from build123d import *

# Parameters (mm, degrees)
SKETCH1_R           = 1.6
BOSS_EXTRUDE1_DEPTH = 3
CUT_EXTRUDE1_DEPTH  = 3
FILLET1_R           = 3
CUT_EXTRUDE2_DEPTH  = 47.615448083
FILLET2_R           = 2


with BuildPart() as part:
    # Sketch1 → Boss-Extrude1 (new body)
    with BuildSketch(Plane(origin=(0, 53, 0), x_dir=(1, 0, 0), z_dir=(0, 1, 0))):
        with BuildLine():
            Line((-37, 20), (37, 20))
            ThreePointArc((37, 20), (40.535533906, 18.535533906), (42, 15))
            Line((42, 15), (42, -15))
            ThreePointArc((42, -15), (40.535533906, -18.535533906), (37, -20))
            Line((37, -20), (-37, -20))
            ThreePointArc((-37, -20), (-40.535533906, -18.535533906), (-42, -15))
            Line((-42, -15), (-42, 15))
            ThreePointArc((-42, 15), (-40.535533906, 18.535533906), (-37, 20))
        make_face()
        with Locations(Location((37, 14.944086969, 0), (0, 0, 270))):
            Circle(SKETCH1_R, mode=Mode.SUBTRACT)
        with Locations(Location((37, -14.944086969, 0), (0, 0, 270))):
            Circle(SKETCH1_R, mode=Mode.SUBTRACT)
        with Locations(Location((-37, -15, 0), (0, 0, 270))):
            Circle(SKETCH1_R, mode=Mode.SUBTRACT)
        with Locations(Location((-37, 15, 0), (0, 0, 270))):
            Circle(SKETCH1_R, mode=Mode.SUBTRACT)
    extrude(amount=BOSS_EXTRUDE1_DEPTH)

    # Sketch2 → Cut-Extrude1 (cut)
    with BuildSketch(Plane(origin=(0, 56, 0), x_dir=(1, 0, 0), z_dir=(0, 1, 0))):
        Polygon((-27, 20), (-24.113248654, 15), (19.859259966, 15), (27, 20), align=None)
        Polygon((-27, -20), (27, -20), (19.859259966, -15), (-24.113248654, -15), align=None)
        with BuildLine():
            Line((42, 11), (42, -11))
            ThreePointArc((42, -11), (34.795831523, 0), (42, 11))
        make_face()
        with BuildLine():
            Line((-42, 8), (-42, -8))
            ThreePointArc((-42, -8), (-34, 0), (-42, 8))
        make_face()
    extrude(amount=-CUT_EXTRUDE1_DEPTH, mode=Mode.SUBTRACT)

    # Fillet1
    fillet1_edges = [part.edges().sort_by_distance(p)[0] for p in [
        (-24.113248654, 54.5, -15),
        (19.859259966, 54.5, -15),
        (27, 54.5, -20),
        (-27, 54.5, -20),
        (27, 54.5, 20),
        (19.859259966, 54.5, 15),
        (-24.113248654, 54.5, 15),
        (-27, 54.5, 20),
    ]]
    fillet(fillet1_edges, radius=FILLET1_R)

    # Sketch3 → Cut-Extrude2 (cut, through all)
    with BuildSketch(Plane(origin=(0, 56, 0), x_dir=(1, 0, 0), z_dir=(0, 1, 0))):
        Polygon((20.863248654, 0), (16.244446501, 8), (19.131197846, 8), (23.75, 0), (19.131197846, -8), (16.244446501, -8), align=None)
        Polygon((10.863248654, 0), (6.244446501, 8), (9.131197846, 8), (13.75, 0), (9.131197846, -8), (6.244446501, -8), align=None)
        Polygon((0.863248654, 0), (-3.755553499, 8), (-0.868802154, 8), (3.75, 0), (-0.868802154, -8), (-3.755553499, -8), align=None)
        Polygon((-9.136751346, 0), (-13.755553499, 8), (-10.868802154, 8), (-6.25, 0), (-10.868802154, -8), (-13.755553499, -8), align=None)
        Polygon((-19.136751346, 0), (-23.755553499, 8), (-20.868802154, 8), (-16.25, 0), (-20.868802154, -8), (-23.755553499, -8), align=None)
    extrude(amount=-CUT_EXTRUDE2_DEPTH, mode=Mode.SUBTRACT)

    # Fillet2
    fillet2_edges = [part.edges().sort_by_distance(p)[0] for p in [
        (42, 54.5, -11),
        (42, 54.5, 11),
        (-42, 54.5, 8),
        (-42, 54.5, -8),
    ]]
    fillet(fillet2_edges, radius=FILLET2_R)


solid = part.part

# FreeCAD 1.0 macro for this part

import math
import FreeCAD as App
import Part
import Sketcher

V = App.Vector
Q = App.Units.Quantity


def edges_at(feature, points):
    """Names of the edges that pass closest to the given points."""
    edges = feature.Shape.Edges
    near = lambda p: min(range(len(edges)), key=lambda i: edges[i].distToShape(Part.Vertex(*p))[0])
    return sorted({f"Edge{near(p) + 1}" for p in points})


def add_polygon(sketch, points):
    """Adds a closed chain of lines whose ends are joined by coincident constraints."""
    first, n = sketch.GeometryCount, len(points)
    for a, b in zip(points, points[1:] + points[:1]):
        sketch.addGeometry(Part.LineSegment(App.Vector(*a, 0), App.Vector(*b, 0)), False)
    for i in range(n):
        sketch.addConstraint(Sketcher.Constraint("Coincident", first + i, 2, first + (i + 1) % n, 1))

doc = App.newDocument("Part")
params = doc.addObject("Spreadsheet::Sheet", "Params")
for row, (alias, value) in enumerate([
    ("sketch1_radius", "5 mm"),
    ("sketch1_diameter", "3.2 mm"),
    ("sketch1_width", "74 mm"),
    ("sketch1_height", "30 mm"),
    ("pad1_length", "3 mm"),
    ("sketch2_radius", "12 mm"),
    ("sketch2_radius2", "8 mm"),
    ("sketch2_width", "54 mm"),
    ("sketch2_height", "22 mm"),
    ("pocket1_length", "3 mm"),
    ("fillet_radius", "3 mm"),
    ("fillet2_radius", "2 mm"),
], start=1):
    params.set(f"A{row}", alias)
    params.set(f"B{row}", "=" + value)
    params.setAlias(f"B{row}", alias)

body = doc.addObject("PartDesign::Body", "Body")

# Sketch on XZ plane
sketch1 = body.newObject("Sketcher::SketchObject", "Sketch")
sketch1.AttachmentSupport = (doc.getObject("XZ_Plane"), [""])
sketch1.MapMode = "FlatFace"
sketch1.AttachmentOffset = App.Placement(V(0, 0, -53), App.Rotation())
sketch1.addGeometry([
    Part.LineSegment(V(37, -20, 0), V(-37, -20, 0)),  # 0
    Part.ArcOfCircle(Part.Circle(V(-37, -15, 0), V(0, 0, 1), 5), math.radians(180), math.radians(270)),  # 1
    Part.LineSegment(V(-42, -15, 0), V(-42, 15, 0)),  # 2
    Part.ArcOfCircle(Part.Circle(V(-37, 15, 0), V(0, 0, 1), 5), math.radians(90), math.radians(180)),  # 3
    Part.LineSegment(V(-37, 20, 0), V(37, 20, 0)),  # 4
    Part.ArcOfCircle(Part.Circle(V(37, 15, 0), V(0, 0, 1), 5), math.radians(0), math.radians(90)),  # 5
    Part.LineSegment(V(42, 15, 0), V(42, -15, 0)),  # 6
    Part.ArcOfCircle(Part.Circle(V(37, -15, 0), V(0, 0, 1), 5), math.radians(-90), math.radians(0)),  # 7
    Part.Circle(V(37, 14.9, 0), V(0, 0, 1), 1.6),  # 8
    Part.Circle(V(-37, 15, 0), V(0, 0, 1), 1.6),  # 9
    Part.Circle(V(37, -14.9, 0), V(0, 0, 1), 1.6),  # 10
    Part.Circle(V(-37, -15, 0), V(0, 0, 1), 1.6),  # 11
], False)
sketch1.addConstraint([
    Sketcher.Constraint("Tangent", 0, 2, 1, 2),
    Sketcher.Constraint("Tangent", 1, 1, 2, 1),
    Sketcher.Constraint("Tangent", 2, 2, 3, 2),
    Sketcher.Constraint("Tangent", 3, 1, 4, 1),
    Sketcher.Constraint("Tangent", 4, 2, 5, 2),
    Sketcher.Constraint("Tangent", 5, 1, 6, 1),
    Sketcher.Constraint("Tangent", 6, 2, 7, 2),
    Sketcher.Constraint("Tangent", 7, 1, 0, 1),
    Sketcher.Constraint("Horizontal", 0),
    Sketcher.Constraint("Vertical", 2),
    Sketcher.Constraint("Horizontal", 4),
    Sketcher.Constraint("Vertical", 6),
    Sketcher.Constraint("Coincident", 9, 3, 3, 3),
    Sketcher.Constraint("Coincident", 11, 3, 1, 3),
    Sketcher.Constraint("Equal", 1, 3),
    Sketcher.Constraint("Equal", 3, 5),
    Sketcher.Constraint("Equal", 5, 7),
    Sketcher.Constraint("Equal", 8, 9),
    Sketcher.Constraint("Equal", 9, 10),
    Sketcher.Constraint("Equal", 10, 11),
    Sketcher.Constraint("Symmetric", 1, 3, 5, 3, -1, 1),
    Sketcher.Constraint("Symmetric", 8, 3, 10, 3, -1),
    Sketcher.Constraint("Vertical", 7, 3, 8, 3),
    Sketcher.Constraint("Radius", 1, 5.0),
    Sketcher.Constraint("Diameter", 8, 3.2),
    Sketcher.Constraint("DistanceX", 0, 2, 0, 1, 74.0),
    Sketcher.Constraint("DistanceY", 2, 1, 2, 2, 30.0),
    Sketcher.Constraint("DistanceY", -1, 1, 8, 3, 14.944087),
])
sketch1.setExpression("Constraints[23]", "Params.sketch1_radius")
sketch1.setExpression("Constraints[24]", "Params.sketch1_diameter")
sketch1.setExpression("Constraints[25]", "Params.sketch1_width")
sketch1.setExpression("Constraints[26]", "Params.sketch1_height")
pad1 = body.newObject("PartDesign::Pad", "Pad")
pad1.Profile = sketch1
pad1.setExpression("Length", "Params.pad1_length")
pad1.Reversed = True

# Sketch on XZ plane
sketch2 = body.newObject("Sketcher::SketchObject", "Sketch001")
sketch2.AttachmentSupport = (doc.getObject("XZ_Plane"), [""])
sketch2.MapMode = "FlatFace"
sketch2.AttachmentOffset = App.Placement(V(0, 0, -56), App.Rotation())
add_polygon(sketch2, [(-27, -20), (-24, -15), (20, -15), (27, -20)])  # lines 0-3
add_polygon(sketch2, [(-27, 20), (27, 20), (20, 15), (-24, 15)])  # lines 4-7
sketch2.addGeometry(Part.LineSegment(V(42, 11, 0), V(42, -11, 0)), False)  # 8
sketch2.addGeometry(Part.ArcOfCircle(Part.Circle(V(47, 0, 0), V(0, 0, 1), 12), math.radians(114), math.radians(246)), False)  # 9
sketch2.addGeometry(Part.LineSegment(V(-42, -8, 0), V(-42, 8, 0)), False)  # 10
sketch2.addGeometry(Part.ArcOfCircle(Part.Circle(V(-42, 0, 0), V(0, 0, 1), 8), math.radians(-90), math.radians(90)), False)  # 11
sketch2.addConstraint([
    Sketcher.Constraint("Coincident", 8, 1, 9, 1),
    Sketcher.Constraint("Coincident", 9, 2, 8, 2),
    Sketcher.Constraint("Coincident", 10, 1, 11, 1),
    Sketcher.Constraint("Coincident", 11, 2, 10, 2),
    Sketcher.Constraint("Horizontal", 1),
    Sketcher.Constraint("Horizontal", 3),
    Sketcher.Constraint("Horizontal", 4),
    Sketcher.Constraint("Horizontal", 6),
    Sketcher.Constraint("Vertical", 8),
    Sketcher.Constraint("Vertical", 10),
    Sketcher.Constraint("Symmetric", 3, 2, 4, 2, -1, 1),
    Sketcher.Constraint("Symmetric", 1, 2, 5, 2, -1),
    Sketcher.Constraint("PointOnObject", 9, 3, -1),
    Sketcher.Constraint("PointOnObject", 11, 3, -1),
    Sketcher.Constraint("Vertical", 2, 2, 4, 2),
    Sketcher.Constraint("Vertical", 0, 2, 6, 2),
    Sketcher.Constraint("Vertical", 3, 2, 7, 2),
    Sketcher.Constraint("Vertical", 11, 3, 10, 1),
    Sketcher.Constraint("Radius", 9, 12.0),
    Sketcher.Constraint("Radius", 11, 8.0),
    Sketcher.Constraint("DistanceX", 3, 2, 3, 1, 54.0),
    Sketcher.Constraint("DistanceY", 8, 2, 8, 1, 22.0),
    Sketcher.Constraint("Angle", 0, Q("60 deg")),
    Sketcher.Constraint("Angle", 2, Q("-35 deg")),
    Sketcher.Constraint("DistanceX", 11, 3, -1, 1, 42.0),
    Sketcher.Constraint("DistanceY", 0, 2, -1, 1, 15.0),
    Sketcher.Constraint("DistanceY", 2, 2, -1, 1, 20.0),
    Sketcher.Constraint("DistanceX", -1, 1, 8, 1, 42.0),
])
sketch2.setExpression("Constraints[26]", "Params.sketch2_radius")
sketch2.setExpression("Constraints[27]", "Params.sketch2_radius2")
sketch2.setExpression("Constraints[28]", "Params.sketch2_width")
sketch2.setExpression("Constraints[29]", "Params.sketch2_height")
pocket1 = body.newObject("PartDesign::Pocket", "Pocket")
pocket1.Profile = sketch2
pocket1.setExpression("Length", "Params.pocket1_length")
pocket1.Reversed = True
doc.recompute()

fillet = body.newObject("PartDesign::Fillet", "Fillet")
fillet.Base = (pocket1, edges_at(pocket1, [
    (-24.113, 54.5, -15),
    (19.859, 54.5, -15),
    (27, 54.5, -20),
    (-27, 54.5, -20),
    (27, 54.5, 20),
    (19.859, 54.5, 15),
    (-24.113, 54.5, 15),
    (-27, 54.5, 20),
]))
fillet.setExpression("Radius", "Params.fillet_radius")

# Sketch on XZ plane
sketch3 = body.newObject("Sketcher::SketchObject", "Sketch002")
sketch3.AttachmentSupport = (doc.getObject("XZ_Plane"), [""])
sketch3.MapMode = "FlatFace"
sketch3.AttachmentOffset = App.Placement(V(0, 0, -56), App.Rotation())
add_polygon(sketch3, [(16.2, -8), (20.9, 0), (16.2, 8), (19.1, 8), (23.8, 0), (19.1, -8)])  # lines 0-5
add_polygon(sketch3, [(6.2, -8), (10.9, 0), (6.2, 8), (9.1, 8), (13.8, 0), (9.1, -8)])  # lines 6-11
add_polygon(sketch3, [(-3.8, -8), (0.9, 0), (-3.8, 8), (-0.9, 8), (3.8, 0), (-0.9, -8)])  # lines 12-17
add_polygon(sketch3, [(-13.8, -8), (-9.1, 0), (-13.8, 8), (-10.9, 8), (-6.2, 0), (-10.9, -8)])  # lines 18-23
add_polygon(sketch3, [(-23.8, -8), (-19.1, 0), (-23.8, 8), (-20.9, 8), (-16.2, 0), (-20.9, -8)])  # lines 24-29
sketch3.addConstraint([
    Sketcher.Constraint("Horizontal", 2),
    Sketcher.Constraint("Horizontal", 5),
    Sketcher.Constraint("Horizontal", 8),
    Sketcher.Constraint("Horizontal", 11),
    Sketcher.Constraint("Horizontal", 14),
    Sketcher.Constraint("Horizontal", 17),
    Sketcher.Constraint("Horizontal", 20),
    Sketcher.Constraint("Horizontal", 23),
    Sketcher.Constraint("Horizontal", 26),
    Sketcher.Constraint("Horizontal", 29),
    Sketcher.Constraint("Symmetric", 2, 2, 4, 2, -1),
    Sketcher.Constraint("Symmetric", 8, 2, 10, 2, -1),
    Sketcher.Constraint("Symmetric", 14, 2, 16, 2, -1),
    Sketcher.Constraint("Symmetric", 20, 2, 22, 2, -1),
    Sketcher.Constraint("Symmetric", 26, 2, 28, 2, -1),
    Sketcher.Constraint("PointOnObject", 0, 2, -1),
    Sketcher.Constraint("PointOnObject", 3, 2, -1),
    Sketcher.Constraint("PointOnObject", 6, 2, -1),
    Sketcher.Constraint("PointOnObject", 9, 2, -1),
    Sketcher.Constraint("PointOnObject", 12, 2, -1),
    Sketcher.Constraint("PointOnObject", 15, 2, -1),
    Sketcher.Constraint("PointOnObject", 18, 2, -1),
    Sketcher.Constraint("PointOnObject", 21, 2, -1),
    Sketcher.Constraint("PointOnObject", 24, 2, -1),
    Sketcher.Constraint("PointOnObject", 27, 2, -1),
    Sketcher.Constraint("Parallel", 1, 3),
    Sketcher.Constraint("Parallel", 0, 4),
    Sketcher.Constraint("Parallel", 4, 6),
    Sketcher.Constraint("Parallel", 3, 7),
    Sketcher.Constraint("Parallel", 7, 9),
    Sketcher.Constraint("Parallel", 10, 12),
    Sketcher.Constraint("Parallel", 9, 13),
    Sketcher.Constraint("Parallel", 13, 15),
    Sketcher.Constraint("Parallel", 16, 18),
    Sketcher.Constraint("Parallel", 15, 19),
    Sketcher.Constraint("Parallel", 19, 21),
    Sketcher.Constraint("Parallel", 22, 24),
    Sketcher.Constraint("Parallel", 21, 25),
    Sketcher.Constraint("Parallel", 25, 27),
    Sketcher.Constraint("Horizontal", 2, 2, 7, 2),
    Sketcher.Constraint("Horizontal", 8, 2, 13, 2),
    Sketcher.Constraint("Horizontal", 14, 2, 19, 2),
    Sketcher.Constraint("Horizontal", 20, 2, 25, 2),
    Sketcher.Constraint("Equal", 5, 8),
    Sketcher.Constraint("Equal", 11, 14),
    Sketcher.Constraint("Equal", 17, 20),
    Sketcher.Constraint("Equal", 23, 26),
    Sketcher.Constraint("Angle", 0, Q("60 deg")),
    Sketcher.Constraint("DistanceY", -1, 1, 1, 2, 8.0),
    Sketcher.Constraint("DistanceX", 6, 2, 0, 2, 10.0),
    Sketcher.Constraint("DistanceX", 12, 2, 6, 2, 10.0),
    Sketcher.Constraint("DistanceX", 18, 2, 12, 2, 10.0),
    Sketcher.Constraint("DistanceX", 24, 2, 18, 2, 10.0),
    Sketcher.Constraint("DistanceX", -1, 1, 3, 2, 23.75),
    Sketcher.Constraint("DistanceX", 2, 1, 2, 2, 2.886751),
])
pocket2 = body.newObject("PartDesign::Pocket", "Pocket001")
pocket2.Profile = sketch3
pocket2.Type = "ThroughAll"
pocket2.Reversed = True
doc.recompute()

fillet2 = body.newObject("PartDesign::Fillet", "Fillet001")
fillet2.Base = (pocket2, edges_at(pocket2, [
    (42, 54.5, -11),
    (42, 54.5, 11),
    (-42, 54.5, 8),
    (-42, 54.5, -8),
]))
fillet2.setExpression("Radius", "Params.fillet2_radius")

doc.recompute()
